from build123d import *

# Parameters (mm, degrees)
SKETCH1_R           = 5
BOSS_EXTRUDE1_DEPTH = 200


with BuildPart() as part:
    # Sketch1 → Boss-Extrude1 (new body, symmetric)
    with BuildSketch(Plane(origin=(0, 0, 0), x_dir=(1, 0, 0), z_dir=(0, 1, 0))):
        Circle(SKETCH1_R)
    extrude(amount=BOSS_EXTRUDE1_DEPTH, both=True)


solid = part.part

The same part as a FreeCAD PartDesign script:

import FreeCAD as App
import Part
import Sketcher
from FreeCAD import Vector

doc = App.newDocument("Part")
body = doc.addObject("PartDesign::Body", "Body")

# Sketch on XZ plane
sketch1 = body.newObject("Sketcher::SketchObject", "Sketch")
sketch1.AttachmentSupport = (doc.getObject("XZ_Plane"), [""])
sketch1.MapMode = "FlatFace"
sketch1.addGeometry(Part.Circle(Vector(0, 0, 0), Vector(0, 0, 1), 5), False)
sketch1.addConstraint([
    Sketcher.Constraint("Coincident", 0, 3, -1, 1),
    Sketcher.Constraint("Diameter", 0, 10.0),
])
pad1 = body.newObject("PartDesign::Pad", "Pad")
pad1.Profile = sketch1
pad1.Length = 400
pad1.Midplane = True

doc.recompute()
